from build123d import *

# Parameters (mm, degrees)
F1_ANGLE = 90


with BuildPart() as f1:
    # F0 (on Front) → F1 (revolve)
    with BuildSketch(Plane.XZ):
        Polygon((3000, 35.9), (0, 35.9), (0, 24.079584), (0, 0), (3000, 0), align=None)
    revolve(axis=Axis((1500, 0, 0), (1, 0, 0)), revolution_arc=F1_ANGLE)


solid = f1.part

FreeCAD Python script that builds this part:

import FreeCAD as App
import Part
import Sketcher

doc = App.newDocument("Part")
body = doc.addObject("PartDesign::Body", "Body")

sketch1 = body.newObject("Sketcher::SketchObject", "Sketch")
sketch1.AttachmentSupport = (doc.getObject("XZ_Plane"), [""])
sketch1.MapMode = "FlatFace"
sketch1.addGeometry(Part.LineSegment(App.Vector(3000, 36, 0), App.Vector(0, 36, 0)), False)
sketch1.addGeometry(Part.LineSegment(App.Vector(0, 36, 0), App.Vector(0, 0, 0)), False)
sketch1.addGeometry(Part.LineSegment(App.Vector(0, 0, 0), App.Vector(3000, 0, 0)), False)
sketch1.addGeometry(Part.LineSegment(App.Vector(3000, 0, 0), App.Vector(3000, 36, 0)), False)
sketch1.addConstraint(Sketcher.Constraint("Coincident", 0, 2, 1, 1))
sketch1.addConstraint(Sketcher.Constraint("Coincident", 1, 2, 2, 1))
sketch1.addConstraint(Sketcher.Constraint("Coincident", 2, 2, 3, 1))
sketch1.addConstraint(Sketcher.Constraint("Coincident", 3, 2, 0, 1))
sketch1.addConstraint(Sketcher.Constraint("Horizontal", 0))
sketch1.addConstraint(Sketcher.Constraint("Vertical", 1))
sketch1.addConstraint(Sketcher.Constraint("Horizontal", 2))
sketch1.addConstraint(Sketcher.Constraint("Vertical", 3))
sketch1.addConstraint(Sketcher.Constraint("Coincident", 1, 2, -1, 1))
sketch1.addConstraint(Sketcher.Constraint("DistanceX", 0, 2, 0, 1, 3000.0))
sketch1.addConstraint(Sketcher.Constraint("DistanceY", 1, 2, 1, 1, 35.9))
revolution = body.newObject("PartDesign::Revolution", "Revolution")
revolution.Profile = sketch1
revolution.ReferenceAxis = (sketch1, ["H_Axis"])
revolution.Angle = 90

doc.recompute()
